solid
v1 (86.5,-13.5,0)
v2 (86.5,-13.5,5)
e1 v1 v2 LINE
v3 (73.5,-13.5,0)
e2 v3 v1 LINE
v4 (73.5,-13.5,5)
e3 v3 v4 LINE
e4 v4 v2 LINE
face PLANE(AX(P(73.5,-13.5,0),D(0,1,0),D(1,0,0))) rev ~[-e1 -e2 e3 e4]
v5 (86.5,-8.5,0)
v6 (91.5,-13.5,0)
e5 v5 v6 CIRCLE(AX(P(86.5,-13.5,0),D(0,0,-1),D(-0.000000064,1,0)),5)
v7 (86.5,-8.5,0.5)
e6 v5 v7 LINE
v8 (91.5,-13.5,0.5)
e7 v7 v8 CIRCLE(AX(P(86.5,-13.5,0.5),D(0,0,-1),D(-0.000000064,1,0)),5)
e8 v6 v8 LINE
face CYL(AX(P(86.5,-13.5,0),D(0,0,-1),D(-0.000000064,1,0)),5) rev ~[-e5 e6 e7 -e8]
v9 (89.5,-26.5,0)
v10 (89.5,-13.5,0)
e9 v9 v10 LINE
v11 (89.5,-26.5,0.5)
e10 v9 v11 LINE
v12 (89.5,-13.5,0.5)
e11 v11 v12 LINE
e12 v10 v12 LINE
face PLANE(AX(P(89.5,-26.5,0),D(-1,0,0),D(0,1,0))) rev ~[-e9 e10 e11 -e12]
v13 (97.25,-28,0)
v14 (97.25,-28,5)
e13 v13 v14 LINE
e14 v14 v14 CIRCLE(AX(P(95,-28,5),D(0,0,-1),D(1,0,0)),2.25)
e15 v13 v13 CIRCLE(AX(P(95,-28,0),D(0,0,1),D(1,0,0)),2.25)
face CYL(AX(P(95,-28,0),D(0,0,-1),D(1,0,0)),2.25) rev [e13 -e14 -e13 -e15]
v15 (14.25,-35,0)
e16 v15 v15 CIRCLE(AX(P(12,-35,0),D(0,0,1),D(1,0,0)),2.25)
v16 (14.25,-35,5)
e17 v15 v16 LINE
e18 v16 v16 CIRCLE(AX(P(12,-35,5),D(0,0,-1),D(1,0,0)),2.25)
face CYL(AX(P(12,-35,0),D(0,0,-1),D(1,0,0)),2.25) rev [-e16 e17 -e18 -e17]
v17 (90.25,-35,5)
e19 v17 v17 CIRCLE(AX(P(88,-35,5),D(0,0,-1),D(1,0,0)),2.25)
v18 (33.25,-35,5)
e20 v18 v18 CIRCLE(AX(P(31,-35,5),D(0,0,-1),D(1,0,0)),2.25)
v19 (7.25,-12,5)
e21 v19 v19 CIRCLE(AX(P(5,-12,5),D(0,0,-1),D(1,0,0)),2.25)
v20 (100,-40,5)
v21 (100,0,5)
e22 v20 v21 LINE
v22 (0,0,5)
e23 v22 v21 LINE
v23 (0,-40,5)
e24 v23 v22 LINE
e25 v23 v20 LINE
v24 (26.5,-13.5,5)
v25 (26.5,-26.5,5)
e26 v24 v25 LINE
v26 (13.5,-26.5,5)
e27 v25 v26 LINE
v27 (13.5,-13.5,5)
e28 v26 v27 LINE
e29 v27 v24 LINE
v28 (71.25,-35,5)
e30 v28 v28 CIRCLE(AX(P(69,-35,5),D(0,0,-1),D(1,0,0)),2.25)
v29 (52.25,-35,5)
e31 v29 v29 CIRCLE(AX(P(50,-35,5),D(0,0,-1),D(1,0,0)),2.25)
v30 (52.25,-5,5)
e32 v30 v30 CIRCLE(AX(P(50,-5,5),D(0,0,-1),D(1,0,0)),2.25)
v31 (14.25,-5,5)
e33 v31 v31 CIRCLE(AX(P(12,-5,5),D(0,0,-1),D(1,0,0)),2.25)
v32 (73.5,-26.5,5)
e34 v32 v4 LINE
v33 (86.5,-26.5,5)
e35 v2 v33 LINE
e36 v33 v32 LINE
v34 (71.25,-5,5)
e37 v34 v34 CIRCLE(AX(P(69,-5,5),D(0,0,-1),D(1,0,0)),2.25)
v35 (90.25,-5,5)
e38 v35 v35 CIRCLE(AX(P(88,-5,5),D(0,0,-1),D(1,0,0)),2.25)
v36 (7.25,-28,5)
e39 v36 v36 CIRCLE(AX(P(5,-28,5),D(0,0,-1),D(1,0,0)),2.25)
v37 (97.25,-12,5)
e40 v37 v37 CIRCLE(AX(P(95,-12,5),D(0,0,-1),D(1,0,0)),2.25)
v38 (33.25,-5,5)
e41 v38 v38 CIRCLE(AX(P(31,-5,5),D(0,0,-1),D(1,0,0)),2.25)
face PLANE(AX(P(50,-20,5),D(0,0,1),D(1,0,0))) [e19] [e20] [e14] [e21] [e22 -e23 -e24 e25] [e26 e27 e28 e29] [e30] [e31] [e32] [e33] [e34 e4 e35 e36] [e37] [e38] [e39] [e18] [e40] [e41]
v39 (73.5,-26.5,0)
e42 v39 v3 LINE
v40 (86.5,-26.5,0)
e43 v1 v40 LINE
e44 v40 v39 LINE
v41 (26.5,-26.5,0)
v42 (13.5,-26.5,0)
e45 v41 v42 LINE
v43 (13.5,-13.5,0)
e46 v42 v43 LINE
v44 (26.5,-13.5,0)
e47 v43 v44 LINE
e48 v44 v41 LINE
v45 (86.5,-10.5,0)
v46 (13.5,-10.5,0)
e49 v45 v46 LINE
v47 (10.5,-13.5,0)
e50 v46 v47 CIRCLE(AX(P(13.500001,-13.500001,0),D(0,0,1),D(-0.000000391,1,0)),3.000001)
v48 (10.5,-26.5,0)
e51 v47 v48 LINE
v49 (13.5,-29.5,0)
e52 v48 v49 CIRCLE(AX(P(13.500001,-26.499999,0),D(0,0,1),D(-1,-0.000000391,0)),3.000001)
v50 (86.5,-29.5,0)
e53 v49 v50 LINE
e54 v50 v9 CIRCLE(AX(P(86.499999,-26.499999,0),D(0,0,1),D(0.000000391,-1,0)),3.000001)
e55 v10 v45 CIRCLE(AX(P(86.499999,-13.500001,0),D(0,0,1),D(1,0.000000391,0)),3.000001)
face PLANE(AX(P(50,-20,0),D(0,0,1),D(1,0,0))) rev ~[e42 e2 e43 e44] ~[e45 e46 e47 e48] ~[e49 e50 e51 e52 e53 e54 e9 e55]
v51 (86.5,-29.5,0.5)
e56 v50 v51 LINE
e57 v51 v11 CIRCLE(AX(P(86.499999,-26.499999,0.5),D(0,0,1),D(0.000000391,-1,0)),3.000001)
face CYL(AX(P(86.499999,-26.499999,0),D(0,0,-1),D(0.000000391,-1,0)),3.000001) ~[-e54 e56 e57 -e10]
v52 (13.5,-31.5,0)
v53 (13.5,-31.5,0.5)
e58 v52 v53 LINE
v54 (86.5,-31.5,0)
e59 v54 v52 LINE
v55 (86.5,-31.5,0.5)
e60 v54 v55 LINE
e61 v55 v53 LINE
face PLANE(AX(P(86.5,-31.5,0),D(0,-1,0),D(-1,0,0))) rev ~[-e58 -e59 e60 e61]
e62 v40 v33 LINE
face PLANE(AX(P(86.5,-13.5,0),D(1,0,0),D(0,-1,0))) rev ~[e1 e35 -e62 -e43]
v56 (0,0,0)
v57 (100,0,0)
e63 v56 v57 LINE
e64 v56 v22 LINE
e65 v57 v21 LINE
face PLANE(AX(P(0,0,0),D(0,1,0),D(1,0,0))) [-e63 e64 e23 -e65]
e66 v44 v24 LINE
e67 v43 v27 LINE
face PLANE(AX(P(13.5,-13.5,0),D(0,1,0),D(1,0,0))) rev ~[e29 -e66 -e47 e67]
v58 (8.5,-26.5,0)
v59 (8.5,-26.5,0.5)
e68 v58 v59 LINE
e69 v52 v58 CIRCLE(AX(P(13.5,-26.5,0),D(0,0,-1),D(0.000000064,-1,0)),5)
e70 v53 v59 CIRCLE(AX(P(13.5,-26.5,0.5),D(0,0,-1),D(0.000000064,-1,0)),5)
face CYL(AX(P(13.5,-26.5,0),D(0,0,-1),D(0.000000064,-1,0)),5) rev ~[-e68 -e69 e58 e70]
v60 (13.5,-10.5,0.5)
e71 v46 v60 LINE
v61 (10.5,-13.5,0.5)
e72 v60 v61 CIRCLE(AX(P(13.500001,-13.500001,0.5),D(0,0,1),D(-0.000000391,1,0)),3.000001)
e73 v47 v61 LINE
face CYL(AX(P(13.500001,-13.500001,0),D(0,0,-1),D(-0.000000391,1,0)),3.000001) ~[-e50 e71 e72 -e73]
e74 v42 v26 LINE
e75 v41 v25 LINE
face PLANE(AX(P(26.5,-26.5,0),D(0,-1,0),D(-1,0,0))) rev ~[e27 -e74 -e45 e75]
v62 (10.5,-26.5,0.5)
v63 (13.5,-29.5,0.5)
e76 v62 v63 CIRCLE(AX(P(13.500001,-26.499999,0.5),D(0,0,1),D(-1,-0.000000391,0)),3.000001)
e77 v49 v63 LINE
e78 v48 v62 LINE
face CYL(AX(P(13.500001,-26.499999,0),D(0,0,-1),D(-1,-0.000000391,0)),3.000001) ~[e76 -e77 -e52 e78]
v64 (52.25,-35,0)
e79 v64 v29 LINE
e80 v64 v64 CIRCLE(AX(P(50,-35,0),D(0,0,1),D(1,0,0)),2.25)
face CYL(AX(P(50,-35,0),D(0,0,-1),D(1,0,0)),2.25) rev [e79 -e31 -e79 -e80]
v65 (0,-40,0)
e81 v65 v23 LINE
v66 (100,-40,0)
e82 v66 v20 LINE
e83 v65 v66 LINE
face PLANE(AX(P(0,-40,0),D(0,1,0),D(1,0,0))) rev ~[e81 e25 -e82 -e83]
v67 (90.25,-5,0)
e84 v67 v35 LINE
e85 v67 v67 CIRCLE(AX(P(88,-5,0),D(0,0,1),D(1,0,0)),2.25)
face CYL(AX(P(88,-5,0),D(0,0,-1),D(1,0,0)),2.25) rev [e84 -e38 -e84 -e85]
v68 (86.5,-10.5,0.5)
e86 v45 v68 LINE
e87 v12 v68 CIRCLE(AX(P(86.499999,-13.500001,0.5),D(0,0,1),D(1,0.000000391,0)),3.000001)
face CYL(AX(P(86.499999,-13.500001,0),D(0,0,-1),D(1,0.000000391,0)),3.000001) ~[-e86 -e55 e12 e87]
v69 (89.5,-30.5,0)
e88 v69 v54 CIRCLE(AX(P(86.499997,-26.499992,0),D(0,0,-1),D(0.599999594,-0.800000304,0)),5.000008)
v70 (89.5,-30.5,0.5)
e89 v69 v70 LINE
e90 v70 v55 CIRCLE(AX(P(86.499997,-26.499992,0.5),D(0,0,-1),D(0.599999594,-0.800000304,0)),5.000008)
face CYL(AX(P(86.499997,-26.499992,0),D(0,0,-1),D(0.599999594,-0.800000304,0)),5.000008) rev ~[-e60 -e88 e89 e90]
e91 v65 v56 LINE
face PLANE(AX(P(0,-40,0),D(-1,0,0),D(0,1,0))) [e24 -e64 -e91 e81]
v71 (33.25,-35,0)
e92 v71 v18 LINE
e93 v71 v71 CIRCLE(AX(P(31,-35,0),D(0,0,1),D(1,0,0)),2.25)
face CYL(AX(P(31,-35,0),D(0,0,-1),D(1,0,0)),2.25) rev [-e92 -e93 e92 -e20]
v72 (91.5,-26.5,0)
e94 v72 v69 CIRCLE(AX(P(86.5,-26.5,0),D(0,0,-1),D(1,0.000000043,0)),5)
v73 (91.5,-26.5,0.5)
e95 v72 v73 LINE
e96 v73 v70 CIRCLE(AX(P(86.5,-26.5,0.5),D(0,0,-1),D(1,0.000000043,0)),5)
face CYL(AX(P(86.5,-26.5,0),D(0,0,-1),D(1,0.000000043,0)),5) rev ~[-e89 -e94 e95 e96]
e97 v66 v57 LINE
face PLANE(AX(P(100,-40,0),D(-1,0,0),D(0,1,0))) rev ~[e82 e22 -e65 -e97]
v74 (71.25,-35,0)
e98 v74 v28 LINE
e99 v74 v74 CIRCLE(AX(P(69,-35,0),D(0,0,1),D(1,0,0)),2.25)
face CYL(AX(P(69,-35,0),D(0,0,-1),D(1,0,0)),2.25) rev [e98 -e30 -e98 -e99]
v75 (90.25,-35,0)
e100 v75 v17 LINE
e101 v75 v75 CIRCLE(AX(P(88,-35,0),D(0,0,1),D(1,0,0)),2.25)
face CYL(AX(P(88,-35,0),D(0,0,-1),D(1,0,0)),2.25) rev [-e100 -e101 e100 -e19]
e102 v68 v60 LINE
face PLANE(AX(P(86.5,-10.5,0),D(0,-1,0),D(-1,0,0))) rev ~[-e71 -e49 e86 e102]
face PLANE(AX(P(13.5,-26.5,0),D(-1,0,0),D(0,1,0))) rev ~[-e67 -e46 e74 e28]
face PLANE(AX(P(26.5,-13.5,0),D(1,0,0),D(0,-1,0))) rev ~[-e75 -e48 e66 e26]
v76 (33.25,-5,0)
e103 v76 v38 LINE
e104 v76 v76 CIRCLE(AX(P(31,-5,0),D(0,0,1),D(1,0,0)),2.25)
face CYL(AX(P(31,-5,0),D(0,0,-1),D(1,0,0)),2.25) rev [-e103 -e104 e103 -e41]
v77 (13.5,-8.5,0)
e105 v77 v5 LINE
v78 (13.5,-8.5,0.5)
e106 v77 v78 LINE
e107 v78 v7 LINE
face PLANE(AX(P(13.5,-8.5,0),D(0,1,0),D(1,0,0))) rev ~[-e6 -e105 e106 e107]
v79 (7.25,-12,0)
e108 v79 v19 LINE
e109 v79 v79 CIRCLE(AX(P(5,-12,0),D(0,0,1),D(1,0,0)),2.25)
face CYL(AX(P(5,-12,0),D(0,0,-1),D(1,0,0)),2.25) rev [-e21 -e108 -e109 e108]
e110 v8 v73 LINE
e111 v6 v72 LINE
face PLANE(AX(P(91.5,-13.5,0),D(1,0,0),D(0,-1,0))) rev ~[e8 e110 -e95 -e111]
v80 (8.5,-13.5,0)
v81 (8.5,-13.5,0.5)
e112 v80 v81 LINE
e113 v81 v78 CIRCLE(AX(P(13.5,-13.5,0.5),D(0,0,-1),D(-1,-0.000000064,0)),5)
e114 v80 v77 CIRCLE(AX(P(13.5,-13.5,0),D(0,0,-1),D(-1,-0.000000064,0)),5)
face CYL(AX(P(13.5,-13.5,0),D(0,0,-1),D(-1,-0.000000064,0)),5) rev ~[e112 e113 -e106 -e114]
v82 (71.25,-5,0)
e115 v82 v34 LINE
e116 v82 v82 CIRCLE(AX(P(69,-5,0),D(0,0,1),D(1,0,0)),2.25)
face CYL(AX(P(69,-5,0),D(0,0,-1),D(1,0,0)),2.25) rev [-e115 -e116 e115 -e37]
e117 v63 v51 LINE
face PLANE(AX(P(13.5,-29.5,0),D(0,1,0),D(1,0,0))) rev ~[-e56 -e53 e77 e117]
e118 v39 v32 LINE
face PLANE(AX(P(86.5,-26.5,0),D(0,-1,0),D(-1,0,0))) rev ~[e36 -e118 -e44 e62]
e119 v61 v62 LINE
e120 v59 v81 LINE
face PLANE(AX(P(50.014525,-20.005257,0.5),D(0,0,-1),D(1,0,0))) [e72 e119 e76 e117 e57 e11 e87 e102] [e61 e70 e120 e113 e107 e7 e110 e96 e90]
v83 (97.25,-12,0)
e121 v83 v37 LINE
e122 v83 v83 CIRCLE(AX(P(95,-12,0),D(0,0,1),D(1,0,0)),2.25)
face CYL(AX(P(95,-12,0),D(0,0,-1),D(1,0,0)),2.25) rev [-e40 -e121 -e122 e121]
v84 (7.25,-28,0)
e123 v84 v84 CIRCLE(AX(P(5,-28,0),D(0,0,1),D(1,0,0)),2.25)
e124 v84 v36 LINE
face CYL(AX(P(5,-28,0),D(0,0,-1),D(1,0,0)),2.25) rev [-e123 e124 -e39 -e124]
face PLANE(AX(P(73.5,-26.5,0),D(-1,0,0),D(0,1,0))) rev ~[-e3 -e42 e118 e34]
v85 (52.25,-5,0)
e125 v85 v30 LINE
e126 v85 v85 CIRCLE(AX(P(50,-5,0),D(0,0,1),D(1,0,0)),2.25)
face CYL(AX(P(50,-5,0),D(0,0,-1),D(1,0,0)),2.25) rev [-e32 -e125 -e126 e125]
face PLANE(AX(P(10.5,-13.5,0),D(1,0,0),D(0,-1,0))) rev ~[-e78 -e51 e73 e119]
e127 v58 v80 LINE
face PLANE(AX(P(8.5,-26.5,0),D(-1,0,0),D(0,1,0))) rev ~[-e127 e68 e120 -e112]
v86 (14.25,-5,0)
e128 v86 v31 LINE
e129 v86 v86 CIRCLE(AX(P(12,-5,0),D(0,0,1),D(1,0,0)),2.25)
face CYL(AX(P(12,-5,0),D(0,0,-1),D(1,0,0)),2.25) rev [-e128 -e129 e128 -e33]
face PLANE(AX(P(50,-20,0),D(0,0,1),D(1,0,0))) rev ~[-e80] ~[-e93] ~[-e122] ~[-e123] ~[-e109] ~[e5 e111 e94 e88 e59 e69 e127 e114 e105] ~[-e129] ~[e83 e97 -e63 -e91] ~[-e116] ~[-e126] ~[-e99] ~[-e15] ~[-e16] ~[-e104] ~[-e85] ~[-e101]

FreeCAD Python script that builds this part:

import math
import FreeCAD as App
import Part
import Sketcher

doc = App.newDocument("Part")
body = doc.addObject("PartDesign::Body", "Body")

sketch1 = body.newObject("Sketcher::SketchObject", "Sketch")
sketch1.AttachmentSupport = (doc.getObject("XY_Plane"), [""])
sketch1.MapMode = "FlatFace"
sketch1.addGeometry([
    Part.LineSegment(App.Vector(0, 0, 0), App.Vector(0, -40, 0)),
    Part.LineSegment(App.Vector(0, -40, 0), App.Vector(100, -40, 0)),
    Part.LineSegment(App.Vector(100, -40, 0), App.Vector(100, 0, 0)),
    Part.LineSegment(App.Vector(100, 0, 0), App.Vector(0, 0, 0)),
], False)
sketch1.addConstraint([
    Sketcher.Constraint("Coincident", 0, 2, 1, 1),
    Sketcher.Constraint("Coincident", 1, 2, 2, 1),
    Sketcher.Constraint("Coincident", 2, 2, 3, 1),
    Sketcher.Constraint("Coincident", 3, 2, 0, 1),
    Sketcher.Constraint("Vertical", 0),
    Sketcher.Constraint("Horizontal", 1),
    Sketcher.Constraint("Vertical", 2),
    Sketcher.Constraint("Horizontal", 3),
    Sketcher.Constraint("Coincident", 3, 2, -1, 1),
    Sketcher.Constraint("DistanceX", 1, 1, 1, 2, 100.0),
    Sketcher.Constraint("DistanceY", 0, 2, 0, 1, 40.0),
])
pad1 = body.newObject("PartDesign::Pad", "Pad")
pad1.Profile = sketch1
pad1.Length = 5

sketch2 = body.newObject("Sketcher::SketchObject", "Sketch001")
sketch2.AttachmentSupport = (doc.getObject("XY_Plane"), [""])
sketch2.MapMode = "FlatFace"
sketch2.addGeometry([
    Part.Circle(App.Vector(12, -35, 0), App.Vector(0, 0, 1), 2.2),
    Part.Circle(App.Vector(31, -35, 0), App.Vector(0, 0, 1), 2.2),
    Part.Circle(App.Vector(50, -35, 0), App.Vector(0, 0, 1), 2.2),
    Part.Circle(App.Vector(69, -35, 0), App.Vector(0, 0, 1), 2.2),
    Part.Circle(App.Vector(88, -35, 0), App.Vector(0, 0, 1), 2.2),
    Part.Circle(App.Vector(95, -28, 0), App.Vector(0, 0, 1), 2.2),
    Part.Circle(App.Vector(95, -12, 0), App.Vector(0, 0, 1), 2.2),
    Part.Circle(App.Vector(88, -5, 0), App.Vector(0, 0, 1), 2.2),
    Part.Circle(App.Vector(69, -5, 0), App.Vector(0, 0, 1), 2.2),
    Part.Circle(App.Vector(50, -5, 0), App.Vector(0, 0, 1), 2.2),
    Part.Circle(App.Vector(31, -5, 0), App.Vector(0, 0, 1), 2.2),
    Part.Circle(App.Vector(12, -5, 0), App.Vector(0, 0, 1), 2.2),
    Part.Circle(App.Vector(5, -12, 0), App.Vector(0, 0, 1), 2.2),
    Part.Circle(App.Vector(5, -28, 0), App.Vector(0, 0, 1), 2.2),
], False)
sketch2.addConstraint([
    Sketcher.Constraint("Equal", 0, 1),
    Sketcher.Constraint("Equal", 1, 2),
    Sketcher.Constraint("Equal", 2, 3),
    Sketcher.Constraint("Equal", 3, 4),
    Sketcher.Constraint("Equal", 4, 5),
    Sketcher.Constraint("Equal", 5, 6),
    Sketcher.Constraint("Equal", 6, 7),
    Sketcher.Constraint("Equal", 7, 8),
    Sketcher.Constraint("Equal", 8, 9),
    Sketcher.Constraint("Equal", 9, 10),
    Sketcher.Constraint("Equal", 10, 11),
    Sketcher.Constraint("Equal", 11, 12),
    Sketcher.Constraint("Equal", 12, 13),
    Sketcher.Constraint("Horizontal", 0, 3, 1, 3),
    Sketcher.Constraint("Horizontal", 1, 3, 2, 3),
    Sketcher.Constraint("Horizontal", 2, 3, 3, 3),
    Sketcher.Constraint("Horizontal", 3, 3, 4, 3),
    Sketcher.Constraint("Horizontal", 7, 3, 8, 3),
    Sketcher.Constraint("Horizontal", 8, 3, 9, 3),
    Sketcher.Constraint("Horizontal", 9, 3, 10, 3),
    Sketcher.Constraint("Horizontal", 10, 3, 11, 3),
    Sketcher.Constraint("Horizontal", 6, 3, 12, 3),
    Sketcher.Constraint("Horizontal", 5, 3, 13, 3),
    Sketcher.Constraint("Vertical", 5, 3, 6, 3),
    Sketcher.Constraint("Vertical", 4, 3, 7, 3),
    Sketcher.Constraint("Vertical", 3, 3, 8, 3),
    Sketcher.Constraint("Vertical", 2, 3, 9, 3),
    Sketcher.Constraint("Vertical", 1, 3, 10, 3),
    Sketcher.Constraint("Vertical", 0, 3, 11, 3),
    Sketcher.Constraint("Vertical", 12, 3, 13, 3),
    Sketcher.Constraint("Diameter", 0, 4.5),
    Sketcher.Constraint("DistanceX", -1, 1, 0, 3, 12.0),
    Sketcher.Constraint("DistanceY", 0, 3, -1, 1, 35.0),
    Sketcher.Constraint("DistanceX", -1, 1, 1, 3, 31.0),
    Sketcher.Constraint("DistanceX", -1, 1, 2, 3, 50.0),
    Sketcher.Constraint("DistanceX", -1, 1, 3, 3, 69.0),
    Sketcher.Constraint("DistanceX", -1, 1, 4, 3, 88.0),
    Sketcher.Constraint("DistanceX", -1, 1, 5, 3, 95.0),
    Sketcher.Constraint("DistanceY", 5, 3, -1, 1, 28.0),
    Sketcher.Constraint("DistanceY", 6, 3, -1, 1, 12.0),
    Sketcher.Constraint("DistanceY", 7, 3, -1, 1, 5.0),
    Sketcher.Constraint("DistanceX", -1, 1, 12, 3, 5.0),
])
pocket1 = body.newObject("PartDesign::Pocket", "Pocket")
pocket1.Profile = sketch2
pocket1.Length = 18.9
pocket1.Reversed = True

sketch3 = body.newObject("Sketcher::SketchObject", "Sketch002")
sketch3.AttachmentSupport = (doc.getObject("XY_Plane"), [""])
sketch3.MapMode = "FlatFace"
sketch3.addGeometry([
    Part.ArcOfCircle(Part.Circle(App.Vector(86.5, -26.5, 0), App.Vector(0, 0, 1), 5), math.radians(-53), math.radians(0)),
    Part.ArcOfCircle(Part.Circle(App.Vector(86.5, -26.5, 0), App.Vector(0, 0, 1), 5), math.radians(-90), math.radians(-53)),
    Part.LineSegment(App.Vector(86.5, -31.5, 0), App.Vector(13.5, -31.5, 0)),
    Part.ArcOfCircle(Part.Circle(App.Vector(13.5, -26.5, 0), App.Vector(0, 0, 1), 5), math.radians(180), math.radians(270)),
    Part.LineSegment(App.Vector(8.5, -26.5, 0), App.Vector(8.5, -13.5, 0)),
    Part.ArcOfCircle(Part.Circle(App.Vector(13.5, -13.5, 0), App.Vector(0, 0, 1), 5), math.radians(90), math.radians(180)),
    Part.LineSegment(App.Vector(13.5, -8.5, 0), App.Vector(86.5, -8.5, 0)),
    Part.ArcOfCircle(Part.Circle(App.Vector(86.5, -13.5, 0), App.Vector(0, 0, 1), 5), math.radians(0), math.radians(90)),
    Part.LineSegment(App.Vector(91.5, -13.5, 0), App.Vector(91.5, -26.5, 0)),
    Part.LineSegment(App.Vector(10.5, -13.5, 0), App.Vector(10.5, -26.5, 0)),
    Part.ArcOfCircle(Part.Circle(App.Vector(13.5, -26.5, 0), App.Vector(0, 0, 1), 3), math.radians(-180), math.radians(-90)),
    Part.LineSegment(App.Vector(13.5, -29.5, 0), App.Vector(86.5, -29.5, 0)),
    Part.ArcOfCircle(Part.Circle(App.Vector(86.5, -26.5, 0), App.Vector(0, 0, 1), 3), math.radians(-90), math.radians(0)),
    Part.LineSegment(App.Vector(89.5, -26.5, 0), App.Vector(89.5, -13.5, 0)),
    Part.ArcOfCircle(Part.Circle(App.Vector(86.5, -13.5, 0), App.Vector(0, 0, 1), 3), math.radians(0), math.radians(90)),
    Part.LineSegment(App.Vector(86.5, -10.5, 0), App.Vector(13.5, -10.5, 0)),
    Part.ArcOfCircle(Part.Circle(App.Vector(13.5, -13.5, 0), App.Vector(0, 0, 1), 3), math.radians(90), math.radians(180)),
], False)
sketch3.addConstraint([
    Sketcher.Constraint("Tangent", 0, 1, 1, 2),
    Sketcher.Constraint("Tangent", 1, 1, 2, 1),
    Sketcher.Constraint("Tangent", 2, 2, 3, 2),
    Sketcher.Constraint("Tangent", 3, 1, 4, 1),
    Sketcher.Constraint("Tangent", 4, 2, 5, 2),
    Sketcher.Constraint("Tangent", 5, 1, 6, 1),
    Sketcher.Constraint("Tangent", 6, 2, 7, 2),
    Sketcher.Constraint("Tangent", 7, 1, 8, 1),
    Sketcher.Constraint("Tangent", 8, 2, 0, 2),
    Sketcher.Constraint("Tangent", 9, 2, 10, 1),
    Sketcher.Constraint("Tangent", 10, 2, 11, 1),
    Sketcher.Constraint("Tangent", 11, 2, 12, 1),
    Sketcher.Constraint("Tangent", 12, 2, 13, 1),
    Sketcher.Constraint("Tangent", 13, 2, 14, 1),
    Sketcher.Constraint("Tangent", 14, 2, 15, 1),
    Sketcher.Constraint("Tangent", 15, 2, 16, 1),
    Sketcher.Constraint("Tangent", 16, 2, 9, 1),
    Sketcher.Constraint("Horizontal", 2),
    Sketcher.Constraint("Vertical", 4),
    Sketcher.Constraint("Horizontal", 6),
    Sketcher.Constraint("Vertical", 8),
    Sketcher.Constraint("Vertical", 9),
    Sketcher.Constraint("Horizontal", 11),
    Sketcher.Constraint("Vertical", 13),
    Sketcher.Constraint("Horizontal", 15),
    Sketcher.Constraint("Coincident", 10, 3, 3, 3),
    Sketcher.Constraint("Coincident", 12, 3, 0, 3),
    Sketcher.Constraint("Coincident", 14, 3, 7, 3),
    Sketcher.Constraint("Coincident", 16, 3, 5, 3),
    Sketcher.Constraint("Equal", 0, 3),
    Sketcher.Constraint("Equal", 3, 5),
    Sketcher.Constraint("Equal", 5, 7),
    Sketcher.Constraint("Vertical", 0, 1, 12, 2),
    Sketcher.Constraint("Radius", 0, 5.0),
    Sketcher.Constraint("Radius", 10, 3.000001),
    Sketcher.Constraint("DistanceX", 2, 2, 2, 1, 73.0),
    Sketcher.Constraint("DistanceY", 4, 1, 4, 2, 13.0),
    Sketcher.Constraint("DistanceX", -1, 1, 0, 3, 86.5),
    Sketcher.Constraint("DistanceY", 0, 3, -1, 1, 26.5),
])
pocket2 = body.newObject("PartDesign::Pocket", "Pocket001")
pocket2.Profile = sketch3
pocket2.Length = 0.5
pocket2.Reversed = True

sketch4 = body.newObject("Sketcher::SketchObject", "Sketch003")
sketch4.AttachmentSupport = (doc.getObject("XY_Plane"), [""])
sketch4.MapMode = "FlatFace"
sketch4.addGeometry([
    Part.LineSegment(App.Vector(86, -14, 0), App.Vector(86, -26, 0)),
    Part.LineSegment(App.Vector(86, -26, 0), App.Vector(74, -26, 0)),
    Part.LineSegment(App.Vector(74, -26, 0), App.Vector(74, -14, 0)),
    Part.LineSegment(App.Vector(74, -14, 0), App.Vector(86, -14, 0)),
    Part.LineSegment(App.Vector(26, -14, 0), App.Vector(26, -26, 0)),
    Part.LineSegment(App.Vector(26, -26, 0), App.Vector(14, -26, 0)),
    Part.LineSegment(App.Vector(14, -26, 0), App.Vector(14, -14, 0)),
    Part.LineSegment(App.Vector(14, -14, 0), App.Vector(26, -14, 0)),
], False)
sketch4.addConstraint([
    Sketcher.Constraint("Coincident", 0, 2, 1, 1),
    Sketcher.Constraint("Coincident", 1, 2, 2, 1),
    Sketcher.Constraint("Coincident", 2, 2, 3, 1),
    Sketcher.Constraint("Coincident", 3, 2, 0, 1),
    Sketcher.Constraint("Coincident", 4, 2, 5, 1),
    Sketcher.Constraint("Coincident", 5, 2, 6, 1),
    Sketcher.Constraint("Coincident", 6, 2, 7, 1),
    Sketcher.Constraint("Coincident", 7, 2, 4, 1),
    Sketcher.Constraint("Vertical", 0),
    Sketcher.Constraint("Horizontal", 1),
    Sketcher.Constraint("Vertical", 2),
    Sketcher.Constraint("Horizontal", 3),
    Sketcher.Constraint("Vertical", 4),
    Sketcher.Constraint("Horizontal", 5),
    Sketcher.Constraint("Vertical", 6),
    Sketcher.Constraint("Horizontal", 7),
    Sketcher.Constraint("Horizontal", 1, 2, 4, 2),
    Sketcher.Constraint("Horizontal", 3, 2, 6, 2),
    Sketcher.Constraint("Equal", 3, 5),
    Sketcher.Constraint("Equal", 7, 0),
    Sketcher.Constraint("DistanceX", 1, 2, 1, 1, 13.0),
    Sketcher.Constraint("DistanceX", 4, 2, 1, 2, 47.0),
    Sketcher.Constraint("DistanceX", -1, 1, 0, 2, 86.5),
    Sketcher.Constraint("DistanceY", 0, 2, -1, 1, 26.5),
])
pocket3 = body.newObject("PartDesign::Pocket", "Pocket002")
pocket3.Profile = sketch4
pocket3.Length = 5
pocket3.Reversed = True

doc.recompute()
